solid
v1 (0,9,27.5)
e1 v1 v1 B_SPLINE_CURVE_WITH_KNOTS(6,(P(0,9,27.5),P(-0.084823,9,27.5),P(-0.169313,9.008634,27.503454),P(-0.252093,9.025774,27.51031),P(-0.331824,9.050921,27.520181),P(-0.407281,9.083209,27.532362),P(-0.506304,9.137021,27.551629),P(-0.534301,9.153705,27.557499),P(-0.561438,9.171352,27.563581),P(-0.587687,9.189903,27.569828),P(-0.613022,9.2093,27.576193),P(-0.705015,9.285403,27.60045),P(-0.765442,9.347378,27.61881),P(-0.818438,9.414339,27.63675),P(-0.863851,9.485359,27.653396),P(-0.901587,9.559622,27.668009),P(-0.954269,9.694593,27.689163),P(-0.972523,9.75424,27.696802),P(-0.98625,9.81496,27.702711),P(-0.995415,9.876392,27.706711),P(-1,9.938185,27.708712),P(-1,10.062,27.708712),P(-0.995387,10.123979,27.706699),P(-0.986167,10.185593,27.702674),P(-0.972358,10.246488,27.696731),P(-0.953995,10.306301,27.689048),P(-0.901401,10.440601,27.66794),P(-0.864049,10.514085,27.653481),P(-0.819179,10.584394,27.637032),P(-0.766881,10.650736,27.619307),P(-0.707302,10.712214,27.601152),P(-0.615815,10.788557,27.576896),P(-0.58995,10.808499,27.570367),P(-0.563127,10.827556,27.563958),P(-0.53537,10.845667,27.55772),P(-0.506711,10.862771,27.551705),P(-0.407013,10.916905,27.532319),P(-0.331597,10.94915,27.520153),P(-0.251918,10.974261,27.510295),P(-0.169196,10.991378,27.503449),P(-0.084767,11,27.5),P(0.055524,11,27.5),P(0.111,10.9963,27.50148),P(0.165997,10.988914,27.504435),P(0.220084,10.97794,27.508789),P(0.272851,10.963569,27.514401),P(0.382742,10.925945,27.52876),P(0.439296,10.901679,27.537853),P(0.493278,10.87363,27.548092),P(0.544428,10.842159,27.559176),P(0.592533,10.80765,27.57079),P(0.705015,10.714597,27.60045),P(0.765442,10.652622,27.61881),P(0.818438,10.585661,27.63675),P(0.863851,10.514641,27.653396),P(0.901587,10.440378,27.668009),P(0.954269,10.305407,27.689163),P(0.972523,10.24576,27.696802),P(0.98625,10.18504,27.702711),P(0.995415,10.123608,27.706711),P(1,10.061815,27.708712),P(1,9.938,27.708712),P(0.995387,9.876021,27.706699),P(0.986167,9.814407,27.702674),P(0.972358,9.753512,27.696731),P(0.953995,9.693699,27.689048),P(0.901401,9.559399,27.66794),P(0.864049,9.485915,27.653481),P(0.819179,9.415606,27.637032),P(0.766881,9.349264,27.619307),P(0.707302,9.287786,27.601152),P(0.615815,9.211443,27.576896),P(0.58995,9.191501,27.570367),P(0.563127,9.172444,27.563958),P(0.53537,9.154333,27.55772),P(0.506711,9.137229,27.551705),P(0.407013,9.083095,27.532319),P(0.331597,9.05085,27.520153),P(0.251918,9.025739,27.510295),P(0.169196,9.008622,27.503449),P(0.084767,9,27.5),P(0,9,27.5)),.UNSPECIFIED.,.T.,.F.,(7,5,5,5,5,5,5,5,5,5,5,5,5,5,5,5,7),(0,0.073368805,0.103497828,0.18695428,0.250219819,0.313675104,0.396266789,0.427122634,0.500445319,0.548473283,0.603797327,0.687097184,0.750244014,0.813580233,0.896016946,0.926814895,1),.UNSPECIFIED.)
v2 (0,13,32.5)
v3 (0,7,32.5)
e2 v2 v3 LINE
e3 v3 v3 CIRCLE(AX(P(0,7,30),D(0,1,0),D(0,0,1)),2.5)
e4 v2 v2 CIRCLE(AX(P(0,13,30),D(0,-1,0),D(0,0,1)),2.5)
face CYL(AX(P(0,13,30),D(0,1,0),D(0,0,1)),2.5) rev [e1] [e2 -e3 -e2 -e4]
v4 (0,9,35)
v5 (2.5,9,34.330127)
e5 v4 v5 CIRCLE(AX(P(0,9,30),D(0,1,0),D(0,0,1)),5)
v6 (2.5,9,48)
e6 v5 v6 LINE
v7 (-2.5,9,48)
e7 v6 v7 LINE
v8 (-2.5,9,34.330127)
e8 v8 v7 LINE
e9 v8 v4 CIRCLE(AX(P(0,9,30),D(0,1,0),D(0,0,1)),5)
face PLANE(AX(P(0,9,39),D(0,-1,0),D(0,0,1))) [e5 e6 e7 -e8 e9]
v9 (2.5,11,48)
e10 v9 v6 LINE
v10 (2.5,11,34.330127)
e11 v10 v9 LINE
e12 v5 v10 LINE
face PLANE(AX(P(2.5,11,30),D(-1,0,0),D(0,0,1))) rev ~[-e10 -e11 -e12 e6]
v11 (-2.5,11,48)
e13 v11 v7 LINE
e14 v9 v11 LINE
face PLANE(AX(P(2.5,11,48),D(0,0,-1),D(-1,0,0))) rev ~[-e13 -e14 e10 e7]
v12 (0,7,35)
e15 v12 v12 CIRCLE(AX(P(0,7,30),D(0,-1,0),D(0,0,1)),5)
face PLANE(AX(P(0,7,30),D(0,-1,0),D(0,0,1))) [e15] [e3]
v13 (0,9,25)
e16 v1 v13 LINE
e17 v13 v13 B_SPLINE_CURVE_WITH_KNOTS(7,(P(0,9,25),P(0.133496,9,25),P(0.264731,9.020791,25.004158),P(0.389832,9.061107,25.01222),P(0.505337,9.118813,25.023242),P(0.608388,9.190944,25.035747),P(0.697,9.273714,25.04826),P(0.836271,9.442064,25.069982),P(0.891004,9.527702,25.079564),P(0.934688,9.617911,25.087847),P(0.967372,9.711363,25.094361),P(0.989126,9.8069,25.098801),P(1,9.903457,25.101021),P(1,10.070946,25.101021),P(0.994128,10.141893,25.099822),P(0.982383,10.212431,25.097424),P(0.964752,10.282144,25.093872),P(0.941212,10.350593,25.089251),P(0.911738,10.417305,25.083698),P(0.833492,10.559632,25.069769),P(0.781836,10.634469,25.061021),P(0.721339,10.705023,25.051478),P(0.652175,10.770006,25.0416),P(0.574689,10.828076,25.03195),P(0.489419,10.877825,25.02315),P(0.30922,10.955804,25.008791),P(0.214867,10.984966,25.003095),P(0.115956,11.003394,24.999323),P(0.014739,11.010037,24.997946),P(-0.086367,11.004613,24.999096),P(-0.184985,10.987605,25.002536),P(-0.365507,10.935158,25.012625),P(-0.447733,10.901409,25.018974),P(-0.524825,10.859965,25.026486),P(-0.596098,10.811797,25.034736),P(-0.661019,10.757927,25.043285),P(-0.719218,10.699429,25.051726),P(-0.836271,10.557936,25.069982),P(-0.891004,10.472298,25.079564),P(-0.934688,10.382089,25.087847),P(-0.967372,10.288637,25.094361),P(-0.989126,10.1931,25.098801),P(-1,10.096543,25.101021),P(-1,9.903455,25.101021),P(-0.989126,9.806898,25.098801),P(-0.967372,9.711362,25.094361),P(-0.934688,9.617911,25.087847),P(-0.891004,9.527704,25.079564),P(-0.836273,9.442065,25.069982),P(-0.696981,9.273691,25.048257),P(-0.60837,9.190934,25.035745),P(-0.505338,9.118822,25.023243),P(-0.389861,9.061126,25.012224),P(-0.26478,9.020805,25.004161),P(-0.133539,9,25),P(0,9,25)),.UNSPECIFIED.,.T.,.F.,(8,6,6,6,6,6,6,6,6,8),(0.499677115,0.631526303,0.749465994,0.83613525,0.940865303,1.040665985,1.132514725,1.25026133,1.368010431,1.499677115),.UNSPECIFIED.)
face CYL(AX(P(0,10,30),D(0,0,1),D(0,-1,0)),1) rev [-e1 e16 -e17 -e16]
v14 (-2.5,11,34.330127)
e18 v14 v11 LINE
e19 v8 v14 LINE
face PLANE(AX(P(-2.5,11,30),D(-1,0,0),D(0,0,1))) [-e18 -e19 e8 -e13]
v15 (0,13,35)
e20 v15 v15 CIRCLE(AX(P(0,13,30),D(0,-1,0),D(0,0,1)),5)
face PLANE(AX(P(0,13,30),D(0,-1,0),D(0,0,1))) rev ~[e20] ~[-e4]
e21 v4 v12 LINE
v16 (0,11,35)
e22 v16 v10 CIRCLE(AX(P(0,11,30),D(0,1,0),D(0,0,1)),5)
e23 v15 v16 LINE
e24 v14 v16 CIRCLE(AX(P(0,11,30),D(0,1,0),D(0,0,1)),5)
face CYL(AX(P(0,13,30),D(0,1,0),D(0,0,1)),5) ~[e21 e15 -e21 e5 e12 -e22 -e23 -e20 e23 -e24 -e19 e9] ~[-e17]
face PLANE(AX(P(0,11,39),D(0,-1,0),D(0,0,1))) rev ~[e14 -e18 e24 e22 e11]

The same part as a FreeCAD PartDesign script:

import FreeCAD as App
import Part
import Sketcher

V = App.Vector
Q = App.Units.Quantity


def add_polygon(sketch, points):
    """Adds a closed chain of lines whose ends are joined by coincident constraints."""
    first, n = sketch.GeometryCount, len(points)
    for a, b in zip(points, points[1:] + points[:1]):
        sketch.addGeometry(Part.LineSegment(App.Vector(*a, 0), App.Vector(*b, 0)), False)
    for i in range(n):
        sketch.addConstraint(Sketcher.Constraint("Coincident", first + i, 2, first + (i + 1) % n, 1))

doc = App.newDocument("Part")
body = doc.addObject("PartDesign::Body", "Body")

sketch1 = body.newObject("Sketcher::SketchObject", "Sketch")
sketch1.AttachmentSupport = (doc.getObject("YZ_Plane"), [""])
sketch1.MapMode = "FlatFace"
sketch1.addGeometry(Part.Circle(V(0, 3, 0), V(0, 0, 1), 1), False)
sketch1.addConstraint(Sketcher.Constraint("PointOnObject", 0, 3, -2))
sketch1.addConstraint(Sketcher.Constraint("Diameter", 0, Q("2 mm")))
sketch1.addConstraint(Sketcher.Constraint("DistanceY", -1, 1, 0, 3, Q("3 mm")))
pad1 = body.newObject("PartDesign::Pad", "Pad")
pad1.Profile = sketch1
pad1.Length = 5
pad1.Reversed = True
body2 = doc.addObject("PartDesign::Body", "Body001")

sketch2 = body2.newObject("Sketcher::SketchObject", "Sketch001")
sketch2.AttachmentSupport = (doc.getObject("XY_Plane001"), [""])
sketch2.MapMode = "FlatFace"
sketch2.addGeometry(Part.Circle(V(0, 0, 0), V(0, 0, 1), 2.5), False)
sketch2.addConstraint(Sketcher.Constraint("Coincident", 0, 3, -1, 1))
sketch2.addConstraint(Sketcher.Constraint("Diameter", 0, Q("5 mm")))
pad2 = body2.newObject("PartDesign::Pad", "Pad001")
pad2.Profile = sketch2
pad2.Length = 8
doc.recompute()

boolean = body2.newObject("PartDesign::Boolean", "Boolean")
boolean.Type = "Fuse"
boolean.addObjects([body])
body3 = doc.addObject("PartDesign::Body", "Body002")

sketch3 = body3.newObject("Sketcher::SketchObject", "Sketch002")
sketch3.AttachmentSupport = (doc.getObject("XY_Plane002"), [""])
sketch3.MapMode = "FlatFace"
sketch3.addGeometry(Part.Circle(V(0, 0, 0), V(0, 0, 1), 5), False)
sketch3.addConstraint(Sketcher.Constraint("Coincident", 0, 3, -1, 1))
sketch3.addConstraint(Sketcher.Constraint("Diameter", 0, Q("10 mm")))
pad3 = body3.newObject("PartDesign::Pad", "Pad002")
pad3.Profile = sketch3
pad3.Length = 6
body4 = doc.addObject("PartDesign::Body", "Body003")

sketch4 = body4.newObject("Sketcher::SketchObject", "Sketch003")
sketch4.AttachmentSupport = (doc.getObject("XY_Plane003"), [""])
sketch4.MapMode = "FlatFace"
sketch4.AttachmentOffset = App.Placement(V(0, 0, 2), App.Rotation())
add_polygon(sketch4, [(0, 2), (0, -2), (18, -2), (18, 2)])
sketch4.addConstraint(Sketcher.Constraint("Vertical", 0))
sketch4.addConstraint(Sketcher.Constraint("Horizontal", 1))
sketch4.addConstraint(Sketcher.Constraint("Vertical", 2))
sketch4.addConstraint(Sketcher.Constraint("Horizontal", 3))
sketch4.addConstraint(Sketcher.Constraint("Symmetric", 0, 2, 3, 2, -1, 1))
sketch4.addConstraint(Sketcher.Constraint("DistanceX", 1, 1, 1, 2, Q("18 mm")))
sketch4.addConstraint(Sketcher.Constraint("DistanceY", 0, 2, 0, 1, Q("5 mm")))
pad4 = body4.newObject("PartDesign::Pad", "Pad003")
pad4.Profile = sketch4
pad4.Length = 2
doc.recompute()

boolean2 = body4.newObject("PartDesign::Boolean", "Boolean001")
boolean2.Type = "Fuse"
boolean2.addObjects([body3])
doc.recompute()

boolean3 = body4.newObject("PartDesign::Boolean", "Boolean002")
boolean3.Type = "Cut"
boolean3.addObjects([body2])
body5 = doc.addObject("PartDesign::Body", "Body004")
doc.recompute()

body4.Placement = App.Placement(V(0, 0, 0), App.Rotation(V(0, 1, 0), 270))
boolean4 = body5.newObject("PartDesign::Boolean", "Boolean003")
boolean4.Type = "Fuse"
boolean4.addObjects([body4])
body6 = doc.addObject("PartDesign::Body", "Body005")
doc.recompute()

body5.Placement = App.Placement(V(0, 13, 30), App.Rotation(V(0, 0, 1), 90))
boolean5 = body6.newObject("PartDesign::Boolean", "Boolean004")
boolean5.Type = "Fuse"
boolean5.addObjects([body5])

doc.recompute()
